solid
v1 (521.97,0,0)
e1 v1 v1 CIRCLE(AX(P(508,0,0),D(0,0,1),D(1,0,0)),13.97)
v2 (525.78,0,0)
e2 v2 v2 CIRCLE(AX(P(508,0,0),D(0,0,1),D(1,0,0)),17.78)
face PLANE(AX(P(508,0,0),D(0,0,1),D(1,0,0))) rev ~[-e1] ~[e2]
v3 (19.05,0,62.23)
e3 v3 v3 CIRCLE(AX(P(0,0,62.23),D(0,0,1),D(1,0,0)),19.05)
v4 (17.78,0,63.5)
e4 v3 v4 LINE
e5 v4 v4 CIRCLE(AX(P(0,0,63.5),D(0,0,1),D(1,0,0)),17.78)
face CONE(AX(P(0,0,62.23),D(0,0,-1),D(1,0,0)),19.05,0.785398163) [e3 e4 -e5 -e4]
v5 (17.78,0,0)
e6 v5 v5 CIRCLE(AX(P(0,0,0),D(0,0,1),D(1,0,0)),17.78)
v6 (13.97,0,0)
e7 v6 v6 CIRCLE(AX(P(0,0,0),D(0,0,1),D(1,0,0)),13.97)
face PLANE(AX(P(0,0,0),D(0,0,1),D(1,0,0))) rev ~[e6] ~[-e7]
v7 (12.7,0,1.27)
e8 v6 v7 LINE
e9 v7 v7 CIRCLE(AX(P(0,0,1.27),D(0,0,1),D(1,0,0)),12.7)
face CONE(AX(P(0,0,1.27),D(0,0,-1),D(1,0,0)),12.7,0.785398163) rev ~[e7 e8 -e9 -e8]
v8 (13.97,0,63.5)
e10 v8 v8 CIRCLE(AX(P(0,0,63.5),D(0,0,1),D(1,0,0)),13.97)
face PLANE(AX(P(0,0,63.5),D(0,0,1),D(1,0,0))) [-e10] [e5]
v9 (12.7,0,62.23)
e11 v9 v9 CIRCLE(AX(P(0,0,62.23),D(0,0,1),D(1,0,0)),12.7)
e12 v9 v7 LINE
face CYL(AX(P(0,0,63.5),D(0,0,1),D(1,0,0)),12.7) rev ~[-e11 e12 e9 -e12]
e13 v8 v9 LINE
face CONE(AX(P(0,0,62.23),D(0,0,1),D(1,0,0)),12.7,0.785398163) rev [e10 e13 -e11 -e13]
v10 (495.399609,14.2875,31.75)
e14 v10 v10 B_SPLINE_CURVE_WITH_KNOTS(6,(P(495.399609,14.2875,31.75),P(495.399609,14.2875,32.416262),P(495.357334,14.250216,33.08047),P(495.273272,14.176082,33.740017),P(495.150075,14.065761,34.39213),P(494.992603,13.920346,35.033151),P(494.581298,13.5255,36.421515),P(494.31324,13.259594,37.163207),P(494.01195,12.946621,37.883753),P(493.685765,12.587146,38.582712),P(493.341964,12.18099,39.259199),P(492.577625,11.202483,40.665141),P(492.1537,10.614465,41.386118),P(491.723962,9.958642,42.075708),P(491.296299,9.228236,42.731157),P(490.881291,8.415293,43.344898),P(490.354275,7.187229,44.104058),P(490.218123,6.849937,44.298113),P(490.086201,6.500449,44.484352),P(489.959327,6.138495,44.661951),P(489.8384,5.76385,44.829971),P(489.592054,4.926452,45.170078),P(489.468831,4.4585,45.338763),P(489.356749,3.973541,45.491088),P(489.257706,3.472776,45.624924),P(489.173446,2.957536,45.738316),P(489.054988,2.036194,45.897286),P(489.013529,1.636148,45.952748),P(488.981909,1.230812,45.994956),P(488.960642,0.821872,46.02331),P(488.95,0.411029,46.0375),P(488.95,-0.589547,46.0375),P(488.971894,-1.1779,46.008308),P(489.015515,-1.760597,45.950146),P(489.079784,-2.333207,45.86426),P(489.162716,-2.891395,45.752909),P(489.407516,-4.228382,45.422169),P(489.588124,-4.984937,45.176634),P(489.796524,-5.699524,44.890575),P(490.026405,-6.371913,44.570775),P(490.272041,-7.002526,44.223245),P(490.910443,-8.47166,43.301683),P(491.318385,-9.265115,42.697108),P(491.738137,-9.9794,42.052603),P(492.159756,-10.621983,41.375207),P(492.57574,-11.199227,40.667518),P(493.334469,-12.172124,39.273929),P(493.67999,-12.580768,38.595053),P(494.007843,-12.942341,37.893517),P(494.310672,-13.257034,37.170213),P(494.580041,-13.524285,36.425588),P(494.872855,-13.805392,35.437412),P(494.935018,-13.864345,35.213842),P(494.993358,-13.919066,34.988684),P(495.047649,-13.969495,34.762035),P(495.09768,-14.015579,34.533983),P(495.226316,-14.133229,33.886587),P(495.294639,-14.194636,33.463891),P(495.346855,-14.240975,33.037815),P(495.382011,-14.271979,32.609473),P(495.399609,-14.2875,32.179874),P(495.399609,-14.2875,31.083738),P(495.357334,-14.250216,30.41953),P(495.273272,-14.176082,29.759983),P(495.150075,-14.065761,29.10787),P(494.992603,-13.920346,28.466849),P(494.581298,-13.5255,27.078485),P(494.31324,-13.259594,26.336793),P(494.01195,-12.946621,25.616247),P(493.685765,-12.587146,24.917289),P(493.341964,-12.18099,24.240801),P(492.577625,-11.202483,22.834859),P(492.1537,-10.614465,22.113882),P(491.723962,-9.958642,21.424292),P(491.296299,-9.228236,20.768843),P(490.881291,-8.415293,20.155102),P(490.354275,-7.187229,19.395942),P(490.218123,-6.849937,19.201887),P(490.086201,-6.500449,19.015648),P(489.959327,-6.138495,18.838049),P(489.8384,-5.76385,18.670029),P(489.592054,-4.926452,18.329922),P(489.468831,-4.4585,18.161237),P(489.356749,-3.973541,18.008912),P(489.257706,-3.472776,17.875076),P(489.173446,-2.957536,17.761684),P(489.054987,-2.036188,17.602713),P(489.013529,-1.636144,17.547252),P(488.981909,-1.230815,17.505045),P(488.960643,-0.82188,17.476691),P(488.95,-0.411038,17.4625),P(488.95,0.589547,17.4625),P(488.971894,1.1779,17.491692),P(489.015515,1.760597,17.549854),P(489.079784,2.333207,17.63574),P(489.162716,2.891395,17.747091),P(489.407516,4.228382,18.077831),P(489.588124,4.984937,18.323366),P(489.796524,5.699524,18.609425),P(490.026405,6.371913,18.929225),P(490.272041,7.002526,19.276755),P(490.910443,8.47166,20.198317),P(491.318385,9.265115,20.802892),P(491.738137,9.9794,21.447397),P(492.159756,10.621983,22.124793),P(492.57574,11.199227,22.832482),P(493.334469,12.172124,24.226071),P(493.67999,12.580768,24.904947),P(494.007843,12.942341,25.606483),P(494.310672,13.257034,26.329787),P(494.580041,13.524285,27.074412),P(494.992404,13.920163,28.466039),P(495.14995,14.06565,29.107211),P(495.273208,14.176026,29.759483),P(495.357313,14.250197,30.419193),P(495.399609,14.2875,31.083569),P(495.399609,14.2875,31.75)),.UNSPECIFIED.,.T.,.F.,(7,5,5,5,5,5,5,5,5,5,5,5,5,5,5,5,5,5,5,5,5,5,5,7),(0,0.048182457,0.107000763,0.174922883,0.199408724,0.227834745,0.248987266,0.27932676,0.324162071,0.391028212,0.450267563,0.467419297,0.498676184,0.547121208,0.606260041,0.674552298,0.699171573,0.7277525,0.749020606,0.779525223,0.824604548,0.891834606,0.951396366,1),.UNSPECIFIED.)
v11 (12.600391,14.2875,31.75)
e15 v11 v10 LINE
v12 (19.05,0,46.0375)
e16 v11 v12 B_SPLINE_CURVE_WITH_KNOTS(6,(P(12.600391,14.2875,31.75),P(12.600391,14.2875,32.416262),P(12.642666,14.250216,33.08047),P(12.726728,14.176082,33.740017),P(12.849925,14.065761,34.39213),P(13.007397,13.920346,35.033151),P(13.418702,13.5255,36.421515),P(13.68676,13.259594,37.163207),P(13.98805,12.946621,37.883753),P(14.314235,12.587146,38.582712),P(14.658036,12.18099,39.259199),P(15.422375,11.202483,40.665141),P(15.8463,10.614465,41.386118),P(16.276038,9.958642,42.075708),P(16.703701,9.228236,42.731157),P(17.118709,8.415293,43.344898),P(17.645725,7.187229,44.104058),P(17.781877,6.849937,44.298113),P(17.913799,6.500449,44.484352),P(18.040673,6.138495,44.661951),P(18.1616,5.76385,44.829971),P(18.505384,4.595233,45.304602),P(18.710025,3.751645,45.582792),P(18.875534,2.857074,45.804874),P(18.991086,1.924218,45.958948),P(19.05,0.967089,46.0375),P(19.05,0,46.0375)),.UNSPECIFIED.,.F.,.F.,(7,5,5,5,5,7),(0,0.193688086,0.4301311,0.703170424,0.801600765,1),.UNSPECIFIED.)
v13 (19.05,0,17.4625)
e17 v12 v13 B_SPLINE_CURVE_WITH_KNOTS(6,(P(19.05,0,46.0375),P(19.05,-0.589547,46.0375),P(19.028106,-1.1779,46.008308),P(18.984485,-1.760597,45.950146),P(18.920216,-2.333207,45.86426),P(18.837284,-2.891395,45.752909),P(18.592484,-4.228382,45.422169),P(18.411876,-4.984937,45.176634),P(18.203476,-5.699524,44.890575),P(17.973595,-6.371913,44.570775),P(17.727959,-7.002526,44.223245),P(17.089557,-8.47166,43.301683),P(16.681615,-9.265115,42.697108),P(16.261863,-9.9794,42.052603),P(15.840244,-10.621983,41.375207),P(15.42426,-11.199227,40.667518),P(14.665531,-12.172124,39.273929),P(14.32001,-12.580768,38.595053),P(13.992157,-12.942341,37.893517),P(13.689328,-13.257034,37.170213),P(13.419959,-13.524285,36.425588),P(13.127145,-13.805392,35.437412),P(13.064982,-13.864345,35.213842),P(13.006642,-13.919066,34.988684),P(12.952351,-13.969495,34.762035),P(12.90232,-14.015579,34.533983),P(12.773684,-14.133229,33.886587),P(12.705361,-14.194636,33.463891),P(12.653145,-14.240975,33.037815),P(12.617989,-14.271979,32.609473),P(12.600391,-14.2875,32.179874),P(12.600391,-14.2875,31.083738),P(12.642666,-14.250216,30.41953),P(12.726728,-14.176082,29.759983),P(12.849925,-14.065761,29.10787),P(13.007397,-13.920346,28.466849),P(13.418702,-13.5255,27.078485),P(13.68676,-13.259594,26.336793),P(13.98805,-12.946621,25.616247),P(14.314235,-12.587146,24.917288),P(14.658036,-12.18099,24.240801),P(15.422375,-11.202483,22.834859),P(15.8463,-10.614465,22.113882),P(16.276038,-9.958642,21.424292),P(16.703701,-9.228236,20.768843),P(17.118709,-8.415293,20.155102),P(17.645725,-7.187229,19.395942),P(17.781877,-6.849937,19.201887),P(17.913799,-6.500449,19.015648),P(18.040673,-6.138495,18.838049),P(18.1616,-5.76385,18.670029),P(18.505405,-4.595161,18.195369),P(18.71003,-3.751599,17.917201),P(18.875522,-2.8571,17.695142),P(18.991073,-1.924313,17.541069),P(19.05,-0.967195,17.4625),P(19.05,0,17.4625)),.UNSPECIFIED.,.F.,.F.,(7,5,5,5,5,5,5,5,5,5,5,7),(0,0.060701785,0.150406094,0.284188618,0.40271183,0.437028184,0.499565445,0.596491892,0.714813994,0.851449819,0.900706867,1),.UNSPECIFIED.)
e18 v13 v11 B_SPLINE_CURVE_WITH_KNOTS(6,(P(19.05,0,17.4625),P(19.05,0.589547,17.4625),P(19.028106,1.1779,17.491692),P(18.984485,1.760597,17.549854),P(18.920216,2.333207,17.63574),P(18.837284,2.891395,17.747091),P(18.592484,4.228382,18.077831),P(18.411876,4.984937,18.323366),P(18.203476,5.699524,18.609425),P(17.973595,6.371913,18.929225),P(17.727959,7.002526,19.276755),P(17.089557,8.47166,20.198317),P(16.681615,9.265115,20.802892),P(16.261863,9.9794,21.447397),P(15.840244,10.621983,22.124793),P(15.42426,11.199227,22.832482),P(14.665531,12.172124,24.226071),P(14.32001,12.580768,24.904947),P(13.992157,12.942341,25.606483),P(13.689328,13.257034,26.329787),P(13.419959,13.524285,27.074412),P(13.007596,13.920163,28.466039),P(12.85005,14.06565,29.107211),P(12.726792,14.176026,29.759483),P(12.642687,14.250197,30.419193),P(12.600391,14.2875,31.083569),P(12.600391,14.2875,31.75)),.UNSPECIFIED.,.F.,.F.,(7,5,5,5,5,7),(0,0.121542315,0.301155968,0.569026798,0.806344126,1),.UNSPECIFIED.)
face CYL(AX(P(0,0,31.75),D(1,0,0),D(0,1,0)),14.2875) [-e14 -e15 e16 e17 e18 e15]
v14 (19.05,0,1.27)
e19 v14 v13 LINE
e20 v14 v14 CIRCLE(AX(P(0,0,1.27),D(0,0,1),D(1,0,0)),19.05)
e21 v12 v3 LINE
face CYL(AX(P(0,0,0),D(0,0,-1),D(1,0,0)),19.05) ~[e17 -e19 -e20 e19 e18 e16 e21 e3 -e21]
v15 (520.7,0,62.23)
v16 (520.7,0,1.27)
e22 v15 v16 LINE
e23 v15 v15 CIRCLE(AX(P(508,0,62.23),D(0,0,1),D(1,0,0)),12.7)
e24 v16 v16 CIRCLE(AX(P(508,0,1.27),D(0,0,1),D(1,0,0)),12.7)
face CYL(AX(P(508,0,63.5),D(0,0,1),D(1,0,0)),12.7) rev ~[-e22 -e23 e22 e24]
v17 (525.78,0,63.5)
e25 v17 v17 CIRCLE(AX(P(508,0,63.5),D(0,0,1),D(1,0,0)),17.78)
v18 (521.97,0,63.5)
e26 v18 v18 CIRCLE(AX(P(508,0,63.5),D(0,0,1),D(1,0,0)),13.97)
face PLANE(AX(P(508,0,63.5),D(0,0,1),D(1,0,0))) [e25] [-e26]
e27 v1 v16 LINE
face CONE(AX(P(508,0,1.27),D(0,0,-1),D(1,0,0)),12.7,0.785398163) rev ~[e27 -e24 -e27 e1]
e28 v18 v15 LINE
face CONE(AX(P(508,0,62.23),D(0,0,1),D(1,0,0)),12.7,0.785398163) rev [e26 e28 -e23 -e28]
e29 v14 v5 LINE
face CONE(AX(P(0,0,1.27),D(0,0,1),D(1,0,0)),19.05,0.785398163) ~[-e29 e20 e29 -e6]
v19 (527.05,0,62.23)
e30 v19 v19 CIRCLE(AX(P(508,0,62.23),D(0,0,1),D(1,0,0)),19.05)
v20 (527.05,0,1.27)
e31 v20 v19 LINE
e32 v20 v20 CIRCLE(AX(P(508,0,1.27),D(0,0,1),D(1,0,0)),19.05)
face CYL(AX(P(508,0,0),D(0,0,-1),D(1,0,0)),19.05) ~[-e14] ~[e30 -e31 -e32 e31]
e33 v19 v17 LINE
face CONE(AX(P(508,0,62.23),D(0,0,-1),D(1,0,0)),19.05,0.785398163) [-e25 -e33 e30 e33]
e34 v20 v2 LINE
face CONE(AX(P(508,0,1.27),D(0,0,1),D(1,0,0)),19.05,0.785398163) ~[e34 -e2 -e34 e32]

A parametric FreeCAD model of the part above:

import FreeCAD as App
import Part
import Sketcher
Q = App.Units.Quantity


def edges_at(feature, points):
    """Names of the edges that pass closest to the given points."""
    edges = feature.Shape.Edges
    near = lambda p: min(range(len(edges)), key=lambda i: edges[i].distToShape(Part.Vertex(*p))[0])
    return sorted({f"Edge{near(p) + 1}" for p in points})

doc = App.newDocument("Part")
body = doc.addObject("PartDesign::Body", "Body")
body.AllowCompound = True

# Sketch on XY plane
sketch1 = body.newObject("Sketcher::SketchObject", "Sketch")
sketch1.AttachmentSupport = (doc.getObject("XY_Plane"), [""])
sketch1.MapMode = "FlatFace"
sketch1.addGeometry([
    Part.Circle(App.Vector(0, 0, 0), App.Vector(0, 0, 1), 19),
    Part.Circle(App.Vector(508, 0, 0), App.Vector(0, 0, 1), 19),
], False)
sketch1.addConstraint([
    Sketcher.Constraint("Coincident", 0, 3, -1, 1),
    Sketcher.Constraint("Equal", 0, 1),
    Sketcher.Constraint("PointOnObject", 1, 3, -1),
    Sketcher.Constraint("Diameter", 0, Q("1.5 in")),
    Sketcher.Constraint("DistanceX", -1, 1, 1, 3, Q("20 in")),
])
pad1 = body.newObject("PartDesign::Pad", "Pad")
pad1.Profile = sketch1
pad1.Length = Q("2.5 in")

# Sketch on YZ plane
sketch2 = body.newObject("Sketcher::SketchObject", "Sketch001")
sketch2.AttachmentSupport = (doc.getObject("YZ_Plane"), [""])
sketch2.MapMode = "FlatFace"
sketch2.addGeometry(Part.Circle(App.Vector(0, 32, 0), App.Vector(0, 0, 1), 14), False)
sketch2.addConstraint([
    Sketcher.Constraint("PointOnObject", 0, 3, -2),
    Sketcher.Constraint("Diameter", 0, Q("1.125 in")),
    Sketcher.Constraint("DistanceY", -1, 1, 0, 3, Q("1.25 in")),
])

# Sketch on XY plane
sketch3 = body.newObject("Sketcher::SketchObject", "Sketch002")
sketch3.AttachmentSupport = (doc.getObject("XY_Plane"), [""])
sketch3.MapMode = "FlatFace"
sketch3.AttachmentOffset = App.Placement(App.Vector(0, 0, 1.25 * 25.4), App.Rotation())
sketch3.addGeometry(Part.LineSegment(App.Vector(0, 0, 0), App.Vector(508, 0, 0)), False)
sketch3.addConstraint([
    Sketcher.Constraint("Horizontal", 0),
    Sketcher.Constraint("Coincident", 0, 1, -1, 1),
    Sketcher.Constraint("DistanceX", 0, 1, 0, 2, Q("20 in")),
])
doc.recompute()

additivepipe = body.newObject("PartDesign::AdditivePipe", "AdditivePipe")
additivepipe.Profile = sketch2
additivepipe.Spine = (sketch3, ["Edge1"])

# Sketch on XY plane
sketch4 = body.newObject("Sketcher::SketchObject", "Sketch003")
sketch4.AttachmentSupport = (doc.getObject("XY_Plane"), [""])
sketch4.MapMode = "FlatFace"
sketch4.AttachmentOffset = App.Placement(App.Vector(0, 0, 2.5 * 25.4), App.Rotation())
sketch4.addGeometry([
    Part.Circle(App.Vector(0, 0, 0), App.Vector(0, 0, 1), 13),
    Part.Circle(App.Vector(508, 0, 0), App.Vector(0, 0, 1), 13),
], False)
sketch4.addConstraint([
    Sketcher.Constraint("Coincident", 0, 3, -1, 1),
    Sketcher.Constraint("Equal", 0, 1),
    Sketcher.Constraint("PointOnObject", 1, 3, -1),
    Sketcher.Constraint("Diameter", 0, Q("1 in")),
    Sketcher.Constraint("DistanceX", -1, 1, 1, 3, Q("20 in")),
])
pocket1 = body.newObject("PartDesign::Pocket", "Pocket")
pocket1.Profile = sketch4
pocket1.Length = Q("2.5 in")
doc.recompute()

chamfer = body.newObject("PartDesign::Chamfer", "Chamfer")
chamfer.Base = (pocket1, edges_at(pocket1, [
    (-19.05, 0, 63.5),
    (-12.7, 0, 63.5),
    (-19.05, 0, 0),
    (-12.7, 0, 0),
    (488.95, 0, 0),
    (495.3, 0, 0),
    (495.3, 0, 63.5),
    (488.95, 0, 63.5),
]))
chamfer.Size = Q("0.05 in")

doc.recompute()
